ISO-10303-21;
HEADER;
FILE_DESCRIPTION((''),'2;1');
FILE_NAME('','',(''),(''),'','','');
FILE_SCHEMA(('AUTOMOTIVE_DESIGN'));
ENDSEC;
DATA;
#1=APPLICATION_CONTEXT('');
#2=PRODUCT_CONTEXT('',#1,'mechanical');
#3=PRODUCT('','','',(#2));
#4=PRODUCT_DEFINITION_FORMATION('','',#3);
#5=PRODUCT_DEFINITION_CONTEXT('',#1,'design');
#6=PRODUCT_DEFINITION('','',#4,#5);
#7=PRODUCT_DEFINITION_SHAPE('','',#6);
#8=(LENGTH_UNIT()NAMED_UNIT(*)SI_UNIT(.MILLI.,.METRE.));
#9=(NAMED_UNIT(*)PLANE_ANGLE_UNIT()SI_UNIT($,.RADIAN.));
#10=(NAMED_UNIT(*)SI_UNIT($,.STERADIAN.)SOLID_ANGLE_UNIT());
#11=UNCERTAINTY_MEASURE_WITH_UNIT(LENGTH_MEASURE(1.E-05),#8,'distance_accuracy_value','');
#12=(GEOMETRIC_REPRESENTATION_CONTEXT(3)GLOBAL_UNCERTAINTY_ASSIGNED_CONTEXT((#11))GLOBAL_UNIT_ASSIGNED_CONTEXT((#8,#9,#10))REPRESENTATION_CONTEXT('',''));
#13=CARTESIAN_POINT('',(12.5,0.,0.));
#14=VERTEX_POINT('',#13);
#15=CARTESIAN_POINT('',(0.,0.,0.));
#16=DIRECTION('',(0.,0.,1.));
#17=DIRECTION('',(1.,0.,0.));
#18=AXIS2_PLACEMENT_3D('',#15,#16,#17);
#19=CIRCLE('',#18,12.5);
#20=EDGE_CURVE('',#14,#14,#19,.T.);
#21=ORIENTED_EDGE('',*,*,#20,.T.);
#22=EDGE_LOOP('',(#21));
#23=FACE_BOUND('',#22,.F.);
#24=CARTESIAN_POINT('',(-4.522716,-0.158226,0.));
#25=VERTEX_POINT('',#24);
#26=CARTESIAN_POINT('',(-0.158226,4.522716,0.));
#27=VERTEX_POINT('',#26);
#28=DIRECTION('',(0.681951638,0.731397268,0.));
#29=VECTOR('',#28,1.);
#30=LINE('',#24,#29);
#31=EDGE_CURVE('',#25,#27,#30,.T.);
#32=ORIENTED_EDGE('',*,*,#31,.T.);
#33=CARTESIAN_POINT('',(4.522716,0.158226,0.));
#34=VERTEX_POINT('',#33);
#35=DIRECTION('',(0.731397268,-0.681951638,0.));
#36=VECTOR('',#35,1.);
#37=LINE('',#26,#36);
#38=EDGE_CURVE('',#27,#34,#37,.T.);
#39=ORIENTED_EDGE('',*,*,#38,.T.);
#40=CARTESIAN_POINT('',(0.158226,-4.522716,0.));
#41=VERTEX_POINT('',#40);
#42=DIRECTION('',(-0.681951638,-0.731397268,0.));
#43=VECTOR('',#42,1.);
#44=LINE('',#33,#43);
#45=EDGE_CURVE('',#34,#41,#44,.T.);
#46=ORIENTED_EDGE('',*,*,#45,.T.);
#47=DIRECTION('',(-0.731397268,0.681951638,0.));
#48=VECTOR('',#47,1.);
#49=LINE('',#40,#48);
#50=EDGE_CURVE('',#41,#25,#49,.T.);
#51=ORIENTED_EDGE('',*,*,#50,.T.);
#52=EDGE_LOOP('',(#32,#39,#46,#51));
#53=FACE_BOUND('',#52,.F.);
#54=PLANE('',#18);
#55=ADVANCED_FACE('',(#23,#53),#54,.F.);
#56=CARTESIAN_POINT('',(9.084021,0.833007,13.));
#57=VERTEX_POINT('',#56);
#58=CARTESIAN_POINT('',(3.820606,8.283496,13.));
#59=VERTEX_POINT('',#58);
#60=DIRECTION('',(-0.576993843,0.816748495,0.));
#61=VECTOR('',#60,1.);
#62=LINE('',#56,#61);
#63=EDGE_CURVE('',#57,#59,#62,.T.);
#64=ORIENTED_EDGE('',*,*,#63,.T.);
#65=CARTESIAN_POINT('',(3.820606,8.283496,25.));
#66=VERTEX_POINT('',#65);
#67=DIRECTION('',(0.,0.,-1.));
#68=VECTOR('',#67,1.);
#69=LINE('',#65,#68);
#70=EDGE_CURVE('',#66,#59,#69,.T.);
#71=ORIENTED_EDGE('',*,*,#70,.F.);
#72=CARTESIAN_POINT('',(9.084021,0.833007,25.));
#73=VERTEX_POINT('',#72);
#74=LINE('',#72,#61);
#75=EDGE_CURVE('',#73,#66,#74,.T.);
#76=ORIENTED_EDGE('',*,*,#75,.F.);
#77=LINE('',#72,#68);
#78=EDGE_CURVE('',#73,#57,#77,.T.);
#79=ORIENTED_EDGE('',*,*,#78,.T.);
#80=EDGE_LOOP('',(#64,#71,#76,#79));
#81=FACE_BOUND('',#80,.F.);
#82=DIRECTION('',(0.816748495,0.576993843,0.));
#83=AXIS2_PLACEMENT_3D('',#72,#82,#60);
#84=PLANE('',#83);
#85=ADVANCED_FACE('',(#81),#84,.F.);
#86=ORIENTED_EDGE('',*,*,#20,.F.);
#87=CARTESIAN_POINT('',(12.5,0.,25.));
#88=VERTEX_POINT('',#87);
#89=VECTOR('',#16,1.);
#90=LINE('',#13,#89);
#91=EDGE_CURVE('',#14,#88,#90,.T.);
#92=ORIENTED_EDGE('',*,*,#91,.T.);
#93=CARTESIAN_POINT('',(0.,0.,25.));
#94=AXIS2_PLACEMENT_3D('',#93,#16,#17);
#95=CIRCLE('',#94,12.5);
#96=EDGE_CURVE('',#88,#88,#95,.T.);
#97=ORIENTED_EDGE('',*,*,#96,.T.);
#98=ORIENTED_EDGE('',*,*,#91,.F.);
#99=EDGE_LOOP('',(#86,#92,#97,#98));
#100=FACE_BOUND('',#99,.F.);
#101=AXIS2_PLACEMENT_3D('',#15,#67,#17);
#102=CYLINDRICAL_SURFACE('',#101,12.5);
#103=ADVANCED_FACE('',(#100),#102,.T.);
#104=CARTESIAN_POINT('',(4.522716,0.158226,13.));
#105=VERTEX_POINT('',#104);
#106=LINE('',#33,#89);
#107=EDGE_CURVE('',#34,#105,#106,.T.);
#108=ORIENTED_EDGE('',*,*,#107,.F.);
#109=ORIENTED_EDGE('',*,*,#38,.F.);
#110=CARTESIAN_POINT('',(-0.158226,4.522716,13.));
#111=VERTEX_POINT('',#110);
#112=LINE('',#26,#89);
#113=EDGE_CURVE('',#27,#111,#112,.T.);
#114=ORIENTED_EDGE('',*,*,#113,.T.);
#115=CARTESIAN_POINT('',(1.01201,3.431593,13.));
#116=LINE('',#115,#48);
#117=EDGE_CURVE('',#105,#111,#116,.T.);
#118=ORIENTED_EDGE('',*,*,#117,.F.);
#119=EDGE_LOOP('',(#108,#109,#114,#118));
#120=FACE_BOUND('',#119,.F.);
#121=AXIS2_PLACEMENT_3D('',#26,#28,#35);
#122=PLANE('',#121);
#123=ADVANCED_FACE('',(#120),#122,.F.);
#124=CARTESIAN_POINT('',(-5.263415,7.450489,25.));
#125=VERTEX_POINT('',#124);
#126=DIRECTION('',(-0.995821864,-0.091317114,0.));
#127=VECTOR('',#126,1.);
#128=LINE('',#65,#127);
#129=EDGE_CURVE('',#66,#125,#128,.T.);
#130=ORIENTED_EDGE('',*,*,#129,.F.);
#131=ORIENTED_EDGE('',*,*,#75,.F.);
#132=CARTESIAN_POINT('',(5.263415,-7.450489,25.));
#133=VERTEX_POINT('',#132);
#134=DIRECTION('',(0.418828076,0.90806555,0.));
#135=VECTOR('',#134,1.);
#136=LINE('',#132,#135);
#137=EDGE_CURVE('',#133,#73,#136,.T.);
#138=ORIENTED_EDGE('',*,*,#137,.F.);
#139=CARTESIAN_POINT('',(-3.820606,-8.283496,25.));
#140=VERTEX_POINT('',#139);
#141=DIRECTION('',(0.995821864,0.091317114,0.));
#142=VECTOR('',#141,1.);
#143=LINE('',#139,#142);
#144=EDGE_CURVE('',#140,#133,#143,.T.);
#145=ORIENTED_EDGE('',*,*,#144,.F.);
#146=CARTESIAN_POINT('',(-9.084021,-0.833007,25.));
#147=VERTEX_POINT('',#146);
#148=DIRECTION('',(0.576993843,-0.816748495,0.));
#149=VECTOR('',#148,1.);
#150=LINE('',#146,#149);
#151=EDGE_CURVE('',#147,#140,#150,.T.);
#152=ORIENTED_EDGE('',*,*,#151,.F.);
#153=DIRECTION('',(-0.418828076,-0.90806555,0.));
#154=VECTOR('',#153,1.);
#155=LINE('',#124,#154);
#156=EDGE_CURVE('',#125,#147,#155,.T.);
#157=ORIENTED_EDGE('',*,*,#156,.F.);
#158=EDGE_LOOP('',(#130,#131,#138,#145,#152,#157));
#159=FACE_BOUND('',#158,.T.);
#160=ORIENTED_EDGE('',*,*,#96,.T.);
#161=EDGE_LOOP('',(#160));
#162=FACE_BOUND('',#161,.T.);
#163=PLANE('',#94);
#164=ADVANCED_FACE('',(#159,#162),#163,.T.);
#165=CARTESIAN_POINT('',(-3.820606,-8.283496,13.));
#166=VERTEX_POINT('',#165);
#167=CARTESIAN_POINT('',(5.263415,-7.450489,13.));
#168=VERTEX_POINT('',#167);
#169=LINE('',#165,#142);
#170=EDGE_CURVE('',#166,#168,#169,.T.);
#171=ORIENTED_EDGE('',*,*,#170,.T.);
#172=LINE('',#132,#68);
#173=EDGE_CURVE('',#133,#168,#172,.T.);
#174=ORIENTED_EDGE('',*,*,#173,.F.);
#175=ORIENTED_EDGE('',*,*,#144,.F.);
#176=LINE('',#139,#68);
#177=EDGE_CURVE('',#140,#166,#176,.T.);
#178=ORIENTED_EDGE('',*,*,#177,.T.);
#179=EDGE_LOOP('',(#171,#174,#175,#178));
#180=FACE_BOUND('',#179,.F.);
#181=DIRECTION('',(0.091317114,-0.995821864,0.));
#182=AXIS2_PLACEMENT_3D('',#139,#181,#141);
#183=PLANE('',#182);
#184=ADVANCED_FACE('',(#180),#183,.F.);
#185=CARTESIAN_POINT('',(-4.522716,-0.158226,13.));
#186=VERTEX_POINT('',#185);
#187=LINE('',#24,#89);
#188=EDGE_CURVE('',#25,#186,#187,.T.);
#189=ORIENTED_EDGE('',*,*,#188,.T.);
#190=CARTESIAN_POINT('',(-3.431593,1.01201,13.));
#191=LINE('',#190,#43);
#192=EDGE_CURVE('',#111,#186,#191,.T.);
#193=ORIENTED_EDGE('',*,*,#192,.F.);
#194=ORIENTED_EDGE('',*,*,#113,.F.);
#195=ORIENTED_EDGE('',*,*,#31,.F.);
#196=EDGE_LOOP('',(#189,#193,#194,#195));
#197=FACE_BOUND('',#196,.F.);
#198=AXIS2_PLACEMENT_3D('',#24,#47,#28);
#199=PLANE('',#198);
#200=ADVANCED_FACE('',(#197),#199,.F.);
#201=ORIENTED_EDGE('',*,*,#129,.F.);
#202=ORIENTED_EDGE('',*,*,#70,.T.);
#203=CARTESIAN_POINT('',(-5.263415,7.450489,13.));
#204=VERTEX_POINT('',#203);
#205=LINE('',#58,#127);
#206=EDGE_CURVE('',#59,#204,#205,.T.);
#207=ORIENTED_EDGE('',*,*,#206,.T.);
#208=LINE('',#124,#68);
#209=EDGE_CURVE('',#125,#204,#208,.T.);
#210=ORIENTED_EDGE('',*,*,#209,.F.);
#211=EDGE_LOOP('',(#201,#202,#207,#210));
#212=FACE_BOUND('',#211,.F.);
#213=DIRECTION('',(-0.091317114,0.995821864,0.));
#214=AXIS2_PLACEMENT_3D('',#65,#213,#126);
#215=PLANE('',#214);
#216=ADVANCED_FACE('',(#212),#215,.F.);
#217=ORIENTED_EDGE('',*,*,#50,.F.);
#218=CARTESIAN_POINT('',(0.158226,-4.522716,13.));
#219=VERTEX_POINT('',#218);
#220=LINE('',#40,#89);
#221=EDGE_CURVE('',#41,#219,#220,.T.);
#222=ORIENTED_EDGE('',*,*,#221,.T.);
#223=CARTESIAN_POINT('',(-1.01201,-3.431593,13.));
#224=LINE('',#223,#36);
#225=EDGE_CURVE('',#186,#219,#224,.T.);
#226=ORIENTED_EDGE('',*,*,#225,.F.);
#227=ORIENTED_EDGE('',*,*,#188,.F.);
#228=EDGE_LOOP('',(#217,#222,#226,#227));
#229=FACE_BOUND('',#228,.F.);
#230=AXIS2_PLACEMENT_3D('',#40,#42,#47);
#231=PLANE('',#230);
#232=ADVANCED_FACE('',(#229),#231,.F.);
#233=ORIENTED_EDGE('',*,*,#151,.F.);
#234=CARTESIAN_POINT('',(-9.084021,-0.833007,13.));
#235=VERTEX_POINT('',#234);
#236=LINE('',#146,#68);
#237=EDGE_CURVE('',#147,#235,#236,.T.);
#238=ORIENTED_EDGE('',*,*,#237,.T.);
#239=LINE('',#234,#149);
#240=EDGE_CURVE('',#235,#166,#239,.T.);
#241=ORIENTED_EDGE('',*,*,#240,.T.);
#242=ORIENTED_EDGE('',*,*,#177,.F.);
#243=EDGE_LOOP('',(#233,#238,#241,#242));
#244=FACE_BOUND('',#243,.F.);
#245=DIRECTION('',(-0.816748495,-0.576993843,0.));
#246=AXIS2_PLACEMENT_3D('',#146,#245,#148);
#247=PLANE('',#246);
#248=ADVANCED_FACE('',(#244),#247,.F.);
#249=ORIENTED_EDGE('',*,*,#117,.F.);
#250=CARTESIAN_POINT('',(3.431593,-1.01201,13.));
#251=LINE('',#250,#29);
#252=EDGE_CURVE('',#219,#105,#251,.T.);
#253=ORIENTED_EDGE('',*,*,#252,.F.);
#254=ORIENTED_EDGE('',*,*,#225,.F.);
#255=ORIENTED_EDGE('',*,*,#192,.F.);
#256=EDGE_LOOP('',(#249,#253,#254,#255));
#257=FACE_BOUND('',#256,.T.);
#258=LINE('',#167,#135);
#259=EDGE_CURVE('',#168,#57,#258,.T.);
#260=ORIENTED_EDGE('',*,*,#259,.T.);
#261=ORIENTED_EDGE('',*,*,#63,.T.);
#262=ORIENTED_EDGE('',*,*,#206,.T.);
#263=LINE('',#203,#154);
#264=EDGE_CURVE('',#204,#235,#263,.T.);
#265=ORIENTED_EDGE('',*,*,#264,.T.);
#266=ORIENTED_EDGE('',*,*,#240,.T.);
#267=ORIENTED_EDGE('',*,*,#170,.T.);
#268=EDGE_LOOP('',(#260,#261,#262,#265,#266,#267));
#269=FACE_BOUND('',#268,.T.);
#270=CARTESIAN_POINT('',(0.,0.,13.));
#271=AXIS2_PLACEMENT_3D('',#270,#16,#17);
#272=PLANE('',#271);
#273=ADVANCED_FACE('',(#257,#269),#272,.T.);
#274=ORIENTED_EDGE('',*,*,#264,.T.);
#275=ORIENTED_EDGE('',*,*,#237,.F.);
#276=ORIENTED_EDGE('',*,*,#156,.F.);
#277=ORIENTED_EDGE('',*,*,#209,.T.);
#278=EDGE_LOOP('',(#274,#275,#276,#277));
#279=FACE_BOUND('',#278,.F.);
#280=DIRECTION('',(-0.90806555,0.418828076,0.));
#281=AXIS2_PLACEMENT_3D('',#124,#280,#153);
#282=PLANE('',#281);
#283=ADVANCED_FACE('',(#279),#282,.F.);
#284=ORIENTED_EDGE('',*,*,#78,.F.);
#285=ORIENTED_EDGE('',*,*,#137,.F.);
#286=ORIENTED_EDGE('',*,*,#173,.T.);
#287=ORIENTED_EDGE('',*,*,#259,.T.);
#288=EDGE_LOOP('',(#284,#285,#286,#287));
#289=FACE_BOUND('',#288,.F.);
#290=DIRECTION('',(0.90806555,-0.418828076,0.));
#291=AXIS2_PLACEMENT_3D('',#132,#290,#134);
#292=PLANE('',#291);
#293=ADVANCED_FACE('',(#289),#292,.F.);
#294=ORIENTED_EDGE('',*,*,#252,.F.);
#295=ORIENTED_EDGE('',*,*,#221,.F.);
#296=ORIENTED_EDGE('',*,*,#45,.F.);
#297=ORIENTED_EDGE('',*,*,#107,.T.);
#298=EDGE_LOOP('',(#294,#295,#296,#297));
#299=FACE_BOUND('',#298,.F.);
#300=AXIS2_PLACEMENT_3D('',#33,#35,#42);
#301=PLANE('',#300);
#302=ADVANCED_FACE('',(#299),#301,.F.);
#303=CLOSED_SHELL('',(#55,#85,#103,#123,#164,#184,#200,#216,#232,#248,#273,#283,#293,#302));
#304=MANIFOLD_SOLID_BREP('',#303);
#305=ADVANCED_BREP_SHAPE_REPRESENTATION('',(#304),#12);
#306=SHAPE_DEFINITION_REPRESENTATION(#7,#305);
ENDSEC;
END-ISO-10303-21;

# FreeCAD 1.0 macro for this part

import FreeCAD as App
import Part
import Sketcher
Q = App.Units.Quantity

doc = App.newDocument("Part")
body = doc.addObject("PartDesign::Body", "Body")

# Sketch on XY plane
sketch1 = body.newObject("Sketcher::SketchObject", "Sketch")
sketch1.AttachmentSupport = (doc.getObject("XY_Plane"), [""])
sketch1.MapMode = "FlatFace"
sketch1.addGeometry(Part.Circle(App.Vector(0, 0, 0), App.Vector(0, 0, 1), 12), False)
sketch1.addConstraint(Sketcher.Constraint("Coincident", 0, 3, -1, 1))
sketch1.addConstraint(Sketcher.Constraint("Diameter", 0, Q("25 mm")))
pad1 = body.newObject("PartDesign::Pad", "Pad")
pad1.Profile = sketch1
pad1.Length = 25

# Sketch on XY plane
sketch2 = body.newObject("Sketcher::SketchObject", "Sketch001")
sketch2.AttachmentSupport = (doc.getObject("XY_Plane"), [""])
sketch2.MapMode = "FlatFace"
sketch2.AttachmentOffset = App.Placement(App.Vector(0, 0, 25), App.Rotation())
sketch2.addGeometry(Part.LineSegment(App.Vector(-9, -1, 0), App.Vector(-4, -8, 0)), False)
sketch2.addGeometry(Part.LineSegment(App.Vector(-4, -8, 0), App.Vector(5, -7, 0)), False)
sketch2.addGeometry(Part.LineSegment(App.Vector(5, -7, 0), App.Vector(9, 1, 0)), False)
sketch2.addGeometry(Part.LineSegment(App.Vector(9, 1, 0), App.Vector(4, 8, 0)), False)
sketch2.addGeometry(Part.LineSegment(App.Vector(4, 8, 0), App.Vector(-5, 7, 0)), False)
sketch2.addGeometry(Part.LineSegment(App.Vector(-5, 7, 0), App.Vector(-9, -1, 0)), False)
sketch2.addConstraint(Sketcher.Constraint("Coincident", 0, 2, 1, 1))
sketch2.addConstraint(Sketcher.Constraint("Coincident", 1, 2, 2, 1))
sketch2.addConstraint(Sketcher.Constraint("Coincident", 2, 2, 3, 1))
sketch2.addConstraint(Sketcher.Constraint("Coincident", 3, 2, 4, 1))
sketch2.addConstraint(Sketcher.Constraint("Coincident", 4, 2, 5, 1))
sketch2.addConstraint(Sketcher.Constraint("Coincident", 5, 2, 0, 1))
sketch2.addConstraint(Sketcher.Constraint("Symmetric", 0, 2, 3, 2, -1, 1))
sketch2.addConstraint(Sketcher.Constraint("Symmetric", 1, 2, 4, 2, -1, 1))
sketch2.addConstraint(Sketcher.Constraint("Symmetric", 2, 2, 5, 2, -1, 1))
sketch2.addConstraint(Sketcher.Constraint("Equal", 0, 1))
sketch2.addConstraint(Sketcher.Constraint("Equal", 1, 2))
sketch2.addConstraint(Sketcher.Constraint("DistanceY", 1, 2, -1, 1, Q("7.450489 mm")))
sketch2.addConstraint(Sketcher.Constraint("DistanceX", -1, 1, 2, 2, Q("9.084021 mm")))
sketch2.addConstraint(Sketcher.Constraint("DistanceX", 0, 2, 1, 2, Q("9.084021 mm")))
sketch2.addConstraint(Sketcher.Constraint("DistanceY", 2, 2, 3, 2, Q("7.450489 mm")))
pocket1 = body.newObject("PartDesign::Pocket", "Pocket")
pocket1.Profile = sketch2
pocket1.Length = 12

# Sketch on XY plane
sketch3 = body.newObject("Sketcher::SketchObject", "Sketch002")
sketch3.AttachmentSupport = (doc.getObject("XY_Plane"), [""])
sketch3.MapMode = "FlatFace"
sketch3.addGeometry(Part.LineSegment(App.Vector(0, -5, 0), App.Vector(-5, 0, 0)), False)
sketch3.addGeometry(Part.LineSegment(App.Vector(-5, 0, 0), App.Vector(0, 5, 0)), False)
sketch3.addGeometry(Part.LineSegment(App.Vector(0, 5, 0), App.Vector(5, 0, 0)), False)
sketch3.addGeometry(Part.LineSegment(App.Vector(5, 0, 0), App.Vector(0, -5, 0)), False)
sketch3.addConstraint(Sketcher.Constraint("Coincident", 0, 2, 1, 1))
sketch3.addConstraint(Sketcher.Constraint("Coincident", 1, 2, 2, 1))
sketch3.addConstraint(Sketcher.Constraint("Coincident", 2, 2, 3, 1))
sketch3.addConstraint(Sketcher.Constraint("Coincident", 3, 2, 0, 1))
sketch3.addConstraint(Sketcher.Constraint("Symmetric", 0, 2, 2, 2, -1, 1))
sketch3.addConstraint(Sketcher.Constraint("Symmetric", 1, 2, 3, 2, -1, 1))
sketch3.addConstraint(Sketcher.Constraint("Perpendicular", 0, 1))
sketch3.addConstraint(Sketcher.Constraint("Equal", 0, 1))
sketch3.addConstraint(Sketcher.Constraint("Distance", 0, Q("6.399999 mm")))
sketch3.addConstraint(Sketcher.Constraint("DistanceX", 0, 2, 1, 2, Q("4.36449 mm")))
pocket2 = body.newObject("PartDesign::Pocket", "Pocket001")
pocket2.Profile = sketch3
pocket2.Length = 25
pocket2.Reversed = True

doc.recompute()
